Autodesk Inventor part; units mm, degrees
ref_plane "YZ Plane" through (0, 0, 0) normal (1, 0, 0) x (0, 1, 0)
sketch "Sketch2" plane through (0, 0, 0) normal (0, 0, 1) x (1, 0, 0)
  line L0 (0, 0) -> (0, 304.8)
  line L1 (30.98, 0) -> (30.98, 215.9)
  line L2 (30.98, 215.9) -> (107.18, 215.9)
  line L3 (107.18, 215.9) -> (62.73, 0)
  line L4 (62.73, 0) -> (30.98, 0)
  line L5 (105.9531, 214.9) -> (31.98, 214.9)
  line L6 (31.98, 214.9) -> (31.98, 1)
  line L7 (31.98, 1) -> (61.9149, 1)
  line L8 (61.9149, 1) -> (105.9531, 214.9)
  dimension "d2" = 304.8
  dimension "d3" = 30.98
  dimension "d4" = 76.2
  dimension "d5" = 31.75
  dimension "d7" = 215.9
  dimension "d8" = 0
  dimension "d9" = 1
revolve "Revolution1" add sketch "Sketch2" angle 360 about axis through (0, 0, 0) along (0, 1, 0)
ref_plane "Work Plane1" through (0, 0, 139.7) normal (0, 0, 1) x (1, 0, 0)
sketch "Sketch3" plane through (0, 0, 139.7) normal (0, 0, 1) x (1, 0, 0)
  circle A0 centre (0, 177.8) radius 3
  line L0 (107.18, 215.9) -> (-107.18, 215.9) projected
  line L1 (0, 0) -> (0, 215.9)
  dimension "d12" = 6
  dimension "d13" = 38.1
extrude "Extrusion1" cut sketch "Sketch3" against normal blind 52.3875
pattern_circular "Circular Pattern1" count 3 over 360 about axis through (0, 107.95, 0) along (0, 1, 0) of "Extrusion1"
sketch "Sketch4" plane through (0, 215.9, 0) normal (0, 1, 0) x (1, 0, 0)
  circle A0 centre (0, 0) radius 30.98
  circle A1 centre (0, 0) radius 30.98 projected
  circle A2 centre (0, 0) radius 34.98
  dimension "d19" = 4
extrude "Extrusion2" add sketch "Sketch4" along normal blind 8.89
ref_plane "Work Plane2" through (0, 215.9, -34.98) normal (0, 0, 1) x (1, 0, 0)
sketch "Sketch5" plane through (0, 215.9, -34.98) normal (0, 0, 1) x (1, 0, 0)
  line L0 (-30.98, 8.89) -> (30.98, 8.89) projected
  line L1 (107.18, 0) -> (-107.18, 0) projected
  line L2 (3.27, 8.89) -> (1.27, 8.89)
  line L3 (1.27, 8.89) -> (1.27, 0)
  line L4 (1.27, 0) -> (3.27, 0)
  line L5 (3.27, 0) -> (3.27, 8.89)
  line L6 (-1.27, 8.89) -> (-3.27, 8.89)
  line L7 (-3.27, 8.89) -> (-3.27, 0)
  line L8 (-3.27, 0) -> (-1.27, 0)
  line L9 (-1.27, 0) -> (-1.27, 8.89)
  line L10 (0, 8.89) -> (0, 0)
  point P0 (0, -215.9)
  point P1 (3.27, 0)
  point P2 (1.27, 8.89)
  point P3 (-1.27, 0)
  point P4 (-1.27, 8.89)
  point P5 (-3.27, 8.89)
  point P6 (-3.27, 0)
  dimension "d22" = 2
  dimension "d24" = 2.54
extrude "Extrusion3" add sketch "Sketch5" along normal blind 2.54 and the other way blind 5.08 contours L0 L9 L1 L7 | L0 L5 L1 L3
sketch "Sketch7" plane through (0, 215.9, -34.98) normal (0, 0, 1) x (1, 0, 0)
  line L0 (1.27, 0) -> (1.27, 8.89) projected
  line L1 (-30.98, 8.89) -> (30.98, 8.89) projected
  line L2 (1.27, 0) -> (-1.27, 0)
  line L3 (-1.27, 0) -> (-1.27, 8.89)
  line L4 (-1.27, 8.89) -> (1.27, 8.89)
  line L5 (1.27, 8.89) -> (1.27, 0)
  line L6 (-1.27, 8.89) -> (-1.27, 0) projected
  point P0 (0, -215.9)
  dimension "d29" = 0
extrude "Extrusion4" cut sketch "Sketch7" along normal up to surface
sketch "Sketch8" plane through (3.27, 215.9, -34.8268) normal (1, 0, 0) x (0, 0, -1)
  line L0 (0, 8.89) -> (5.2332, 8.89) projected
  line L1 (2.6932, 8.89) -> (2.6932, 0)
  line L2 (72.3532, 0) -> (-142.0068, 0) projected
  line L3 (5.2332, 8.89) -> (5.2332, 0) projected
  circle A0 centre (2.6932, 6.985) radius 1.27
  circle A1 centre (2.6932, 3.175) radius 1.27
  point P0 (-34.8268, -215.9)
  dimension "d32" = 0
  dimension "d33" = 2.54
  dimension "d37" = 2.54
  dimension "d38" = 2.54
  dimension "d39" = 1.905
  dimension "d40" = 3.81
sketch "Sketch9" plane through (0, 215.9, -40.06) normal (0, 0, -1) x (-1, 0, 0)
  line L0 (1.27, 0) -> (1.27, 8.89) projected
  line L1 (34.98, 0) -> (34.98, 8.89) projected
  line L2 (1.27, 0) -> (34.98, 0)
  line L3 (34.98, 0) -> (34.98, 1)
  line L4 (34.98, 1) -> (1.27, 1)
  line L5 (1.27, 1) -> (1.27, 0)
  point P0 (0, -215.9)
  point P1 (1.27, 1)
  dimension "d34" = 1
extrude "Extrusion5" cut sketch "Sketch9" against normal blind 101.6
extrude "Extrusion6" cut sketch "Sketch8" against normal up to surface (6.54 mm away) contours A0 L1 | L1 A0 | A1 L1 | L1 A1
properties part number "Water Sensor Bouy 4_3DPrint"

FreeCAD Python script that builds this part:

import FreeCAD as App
import Part
import Sketcher
Q = App.Units.Quantity

doc = App.newDocument("Part")
body = doc.addObject("PartDesign::Body", "Body")

# Sketch on XY plane
sketch1 = body.newObject("Sketcher::SketchObject", "Sketch")
sketch1.AttachmentSupport = (doc.getObject("XY_Plane"), [""])
sketch1.MapMode = "FlatFace"
sketch1.addGeometry([
    Part.LineSegment(App.Vector(30.98, 215.9, 0), App.Vector(30.98, 0, 0)),  # 0
    Part.LineSegment(App.Vector(30.98, 0, 0), App.Vector(62.73, 0, 0)),  # 1
    Part.LineSegment(App.Vector(62.73, 0, 0), App.Vector(107.18, 215.9, 0)),  # 2
    Part.LineSegment(App.Vector(107.18, 215.9, 0), App.Vector(30.98, 215.9, 0)),  # 3
    Part.LineSegment(App.Vector(31.98, 214.9, 0), App.Vector(105.9531, 214.9, 0)),  # 4
    Part.LineSegment(App.Vector(105.9531, 214.9, 0), App.Vector(61.9149, 1, 0)),  # 5
    Part.LineSegment(App.Vector(61.9149, 1, 0), App.Vector(31.98, 1, 0)),  # 6
    Part.LineSegment(App.Vector(31.98, 1, 0), App.Vector(31.98, 214.9, 0)),  # 7
], False)
sketch1.addConstraint([
    Sketcher.Constraint("Coincident", 0, 2, 1, 1),
    Sketcher.Constraint("Coincident", 1, 2, 2, 1),
    Sketcher.Constraint("Coincident", 2, 2, 3, 1),
    Sketcher.Constraint("Coincident", 3, 2, 0, 1),
    Sketcher.Constraint("Coincident", 4, 2, 5, 1),
    Sketcher.Constraint("Coincident", 5, 2, 6, 1),
    Sketcher.Constraint("Coincident", 6, 2, 7, 1),
    Sketcher.Constraint("Coincident", 7, 2, 4, 1),
    Sketcher.Constraint("Vertical", 0),
    Sketcher.Constraint("Horizontal", 1),
    Sketcher.Constraint("Horizontal", 3),
    Sketcher.Constraint("Horizontal", 4),
    Sketcher.Constraint("Horizontal", 6),
    Sketcher.Constraint("Vertical", 7),
    Sketcher.Constraint("PointOnObject", 0, 2, -1),
    Sketcher.Constraint("Parallel", 2, 5),
    Sketcher.Constraint("DistanceX", 3, 2, 3, 1, Q("3 in")),
    Sketcher.Constraint("DistanceY", 0, 2, 0, 1, Q("8.5 in")),
    Sketcher.Constraint("DistanceX", 1, 1, 1, 2, Q("1.25 in")),
    Sketcher.Constraint("DistanceX", -1, 1, 0, 2, Q("30.98 mm")),
    Sketcher.Constraint("DistanceY", -1, 1, 5, 2, Q("1 mm")),
    Sketcher.Constraint("DistanceY", 4, 2, 2, 2, Q("1 mm")),
    Sketcher.Constraint("DistanceX", 0, 2, 6, 2, Q("1 mm")),
    Sketcher.Constraint("DistanceX", 4, 1, 4, 2, Q("73.973 mm")),
])
revolution = body.newObject("PartDesign::Revolution", "Revolution")
revolution.Profile = sketch1
revolution.ReferenceAxis = (sketch1, ["V_Axis"])
revolution.Angle = 360

# Sketch on XY plane
sketch2 = body.newObject("Sketcher::SketchObject", "Sketch001")
sketch2.AttachmentSupport = (doc.getObject("XY_Plane"), [""])
sketch2.MapMode = "FlatFace"
sketch2.AttachmentOffset = App.Placement(App.Vector(0, 0, 5.5 * 25.4), App.Rotation())
sketch2.addGeometry(Part.Circle(App.Vector(0, 177.8, 0), App.Vector(0, 0, 1), 3), False)
sketch2.addConstraint([
    Sketcher.Constraint("PointOnObject", 0, 3, -2),
    Sketcher.Constraint("Diameter", 0, Q("6 mm")),
    Sketcher.Constraint("DistanceY", -1, 1, 0, 3, Q("7 in")),
])
pocket1 = body.newObject("PartDesign::Pocket", "Pocket")
pocket1.Profile = sketch2
pocket1.Length = Q("2.0625 in")
doc.recompute()

polarpattern = body.newObject("PartDesign::PolarPattern", "PolarPattern")
polarpattern.Originals = [pocket1]
polarpattern.Axis = (doc.getObject("Y_Axis"), [""])
polarpattern.Angle = 360
polarpattern.Occurrences = 3
body.Tip = polarpattern

# Sketch on XZ plane
sketch3 = body.newObject("Sketcher::SketchObject", "Sketch002")
sketch3.AttachmentSupport = (doc.getObject("XZ_Plane"), [""])
sketch3.MapMode = "FlatFace"
sketch3.AttachmentOffset = App.Placement(App.Vector(0, 0, -8.5 * 25.4), App.Rotation())
sketch3.addGeometry([
    Part.Circle(App.Vector(0, 0, 0), App.Vector(0, 0, 1), 34.98),
    Part.Circle(App.Vector(0, 0, 0), App.Vector(0, 0, 1), 30.98),
], False)
sketch3.addConstraint([
    Sketcher.Constraint("Coincident", 0, 3, -1, 1),
    Sketcher.Constraint("Coincident", 1, 3, -1, 1),
    Sketcher.Constraint("Diameter", 0, Q("69.96 mm")),
    Sketcher.Constraint("Diameter", 1, Q("61.96 mm")),
])
pad1 = body.newObject("PartDesign::Pad", "Pad")
pad1.Profile = sketch3
pad1.Length = Q("0.35 in")
pad1.Reversed = True

# Sketch on XY plane
sketch4 = body.newObject("Sketcher::SketchObject", "Sketch003")
sketch4.AttachmentSupport = (doc.getObject("XY_Plane"), [""])
sketch4.MapMode = "FlatFace"
sketch4.AttachmentOffset = App.Placement(App.Vector(0, 0, -34.98), App.Rotation())
sketch4.addGeometry([
    Part.LineSegment(App.Vector(-1.27, 224.79, 0), App.Vector(-3.27, 224.79, 0)),  # 0
    Part.LineSegment(App.Vector(-3.27, 224.79, 0), App.Vector(-3.27, 215.9, 0)),  # 1
    Part.LineSegment(App.Vector(-3.27, 215.9, 0), App.Vector(-1.27, 215.9, 0)),  # 2
    Part.LineSegment(App.Vector(-1.27, 215.9, 0), App.Vector(-1.27, 224.79, 0)),  # 3
    Part.LineSegment(App.Vector(3.27, 224.79, 0), App.Vector(1.27, 224.79, 0)),  # 4
    Part.LineSegment(App.Vector(1.27, 224.79, 0), App.Vector(1.27, 215.9, 0)),  # 5
    Part.LineSegment(App.Vector(1.27, 215.9, 0), App.Vector(3.27, 215.9, 0)),  # 6
    Part.LineSegment(App.Vector(3.27, 215.9, 0), App.Vector(3.27, 224.79, 0)),  # 7
], False)
sketch4.addConstraint([
    Sketcher.Constraint("Coincident", 0, 2, 1, 1),
    Sketcher.Constraint("Coincident", 1, 2, 2, 1),
    Sketcher.Constraint("Coincident", 2, 2, 3, 1),
    Sketcher.Constraint("Coincident", 3, 2, 0, 1),
    Sketcher.Constraint("Coincident", 4, 2, 5, 1),
    Sketcher.Constraint("Coincident", 5, 2, 6, 1),
    Sketcher.Constraint("Coincident", 6, 2, 7, 1),
    Sketcher.Constraint("Coincident", 7, 2, 4, 1),
    Sketcher.Constraint("Horizontal", 0),
    Sketcher.Constraint("Vertical", 1),
    Sketcher.Constraint("Horizontal", 2),
    Sketcher.Constraint("Vertical", 3),
    Sketcher.Constraint("Horizontal", 4),
    Sketcher.Constraint("Vertical", 5),
    Sketcher.Constraint("Horizontal", 6),
    Sketcher.Constraint("Vertical", 7),
    Sketcher.Constraint("Symmetric", 3, 2, 4, 2, -2),
    Sketcher.Constraint("Symmetric", 1, 2, 6, 2, -2),
    Sketcher.Constraint("DistanceX", 3, 2, 4, 2, Q("0.1 in")),
    Sketcher.Constraint("DistanceX", 0, 2, 0, 1, Q("2 mm")),
    Sketcher.Constraint("DistanceY", 1, 2, 1, 1, Q("0.35 in")),
    Sketcher.Constraint("DistanceY", -1, 1, 1, 2, Q("8.5 in")),
])
pad2 = body.newObject("PartDesign::Pad", "Pad001")
pad2.Profile = sketch4
pad2.Type = "TwoLengths"
pad2.Length = Q("0.1 in")
pad2.Length2 = Q("0.2 in")

# Sketch on XY plane
sketch5 = body.newObject("Sketcher::SketchObject", "Sketch004")
sketch5.AttachmentSupport = (doc.getObject("XY_Plane"), [""])
sketch5.MapMode = "FlatFace"
sketch5.AttachmentOffset = App.Placement(App.Vector(0, 0, -34.98), App.Rotation())
sketch5.addGeometry([
    Part.LineSegment(App.Vector(-1.27, 215.9, 0), App.Vector(1.27, 215.9, 0)),
    Part.LineSegment(App.Vector(1.27, 215.9, 0), App.Vector(1.27, 224.79, 0)),
    Part.LineSegment(App.Vector(1.27, 224.79, 0), App.Vector(-1.27, 224.79, 0)),
    Part.LineSegment(App.Vector(-1.27, 224.79, 0), App.Vector(-1.27, 215.9, 0)),
], False)
sketch5.addConstraint([
    Sketcher.Constraint("Coincident", 0, 2, 1, 1),
    Sketcher.Constraint("Coincident", 1, 2, 2, 1),
    Sketcher.Constraint("Coincident", 2, 2, 3, 1),
    Sketcher.Constraint("Coincident", 3, 2, 0, 1),
    Sketcher.Constraint("Horizontal", 0),
    Sketcher.Constraint("Vertical", 1),
    Sketcher.Constraint("Horizontal", 2),
    Sketcher.Constraint("Vertical", 3),
    Sketcher.Constraint("DistanceX", 0, 1, 0, 2, Q("0.1 in")),
    Sketcher.Constraint("DistanceY", 1, 1, 1, 2, Q("0.35 in")),
    Sketcher.Constraint("DistanceY", -1, 1, 0, 2, Q("8.5 in")),
    Sketcher.Constraint("DistanceX", -1, 1, 0, 2, Q("0.05 in")),
])
pocket2 = body.newObject("PartDesign::Pocket", "Pocket001")
pocket2.Profile = sketch5
pocket2.Type = "UpToFirst"
pocket2.Reversed = True

# Sketch on XY plane
sketch6 = body.newObject("Sketcher::SketchObject", "Sketch005")
sketch6.AttachmentSupport = (doc.getObject("XY_Plane"), [""])
sketch6.MapMode = "FlatFace"
sketch6.AttachmentOffset = App.Placement(App.Vector(0, 0, -40.06), App.Rotation())
sketch6.addGeometry([
    Part.LineSegment(App.Vector(-1.27, 216.9, 0), App.Vector(-1.27, 215.9, 0)),
    Part.LineSegment(App.Vector(-1.27, 215.9, 0), App.Vector(-34.98, 215.9, 0)),
    Part.LineSegment(App.Vector(-34.98, 215.9, 0), App.Vector(-34.98, 216.9, 0)),
    Part.LineSegment(App.Vector(-34.98, 216.9, 0), App.Vector(-1.27, 216.9, 0)),
], False)
sketch6.addConstraint([
    Sketcher.Constraint("Coincident", 0, 2, 1, 1),
    Sketcher.Constraint("Coincident", 1, 2, 2, 1),
    Sketcher.Constraint("Coincident", 2, 2, 3, 1),
    Sketcher.Constraint("Coincident", 3, 2, 0, 1),
    Sketcher.Constraint("Vertical", 0),
    Sketcher.Constraint("Horizontal", 1),
    Sketcher.Constraint("Vertical", 2),
    Sketcher.Constraint("Horizontal", 3),
    Sketcher.Constraint("DistanceY", 0, 2, 0, 1, Q("1 mm")),
    Sketcher.Constraint("DistanceY", -1, 1, 0, 2, Q("8.5 in")),
    Sketcher.Constraint("DistanceX", 0, 2, -1, 1, Q("0.05 in")),
    Sketcher.Constraint("DistanceX", 1, 2, 1, 1, Q("33.71 mm")),
])
pocket3 = body.newObject("PartDesign::Pocket", "Pocket002")
pocket3.Profile = sketch6
pocket3.Length = Q("4 in")
pocket3.Reversed = True

# Sketch on YZ plane
sketch7 = body.newObject("Sketcher::SketchObject", "Sketch006")
sketch7.AttachmentSupport = (doc.getObject("YZ_Plane"), [""])
sketch7.MapMode = "FlatFace"
sketch7.AttachmentOffset = App.Placement(App.Vector(0, 0, 3.27), App.Rotation())
sketch7.addGeometry([
    Part.Circle(App.Vector(222.885, -37.52, 0), App.Vector(0, 0, 1), 1.27),
    Part.Circle(App.Vector(219.075, -37.52, 0), App.Vector(0, 0, 1), 1.27),
], False)
sketch7.addConstraint([
    Sketcher.Constraint("Equal", 0, 1),
    Sketcher.Constraint("Horizontal", 0, 3, 1, 3),
    Sketcher.Constraint("Diameter", 0, Q("0.1 in")),
    Sketcher.Constraint("DistanceX", 1, 3, 0, 3, Q("0.15 in")),
    Sketcher.Constraint("DistanceX", -1, 1, 0, 3, Q("8.775 in")),
    Sketcher.Constraint("DistanceY", 0, 3, -1, 1, Q("37.52 mm")),
])
pocket4 = body.newObject("PartDesign::Pocket", "Pocket003")
pocket4.Profile = sketch7
pocket4.Length = 6.54

doc.recompute()
